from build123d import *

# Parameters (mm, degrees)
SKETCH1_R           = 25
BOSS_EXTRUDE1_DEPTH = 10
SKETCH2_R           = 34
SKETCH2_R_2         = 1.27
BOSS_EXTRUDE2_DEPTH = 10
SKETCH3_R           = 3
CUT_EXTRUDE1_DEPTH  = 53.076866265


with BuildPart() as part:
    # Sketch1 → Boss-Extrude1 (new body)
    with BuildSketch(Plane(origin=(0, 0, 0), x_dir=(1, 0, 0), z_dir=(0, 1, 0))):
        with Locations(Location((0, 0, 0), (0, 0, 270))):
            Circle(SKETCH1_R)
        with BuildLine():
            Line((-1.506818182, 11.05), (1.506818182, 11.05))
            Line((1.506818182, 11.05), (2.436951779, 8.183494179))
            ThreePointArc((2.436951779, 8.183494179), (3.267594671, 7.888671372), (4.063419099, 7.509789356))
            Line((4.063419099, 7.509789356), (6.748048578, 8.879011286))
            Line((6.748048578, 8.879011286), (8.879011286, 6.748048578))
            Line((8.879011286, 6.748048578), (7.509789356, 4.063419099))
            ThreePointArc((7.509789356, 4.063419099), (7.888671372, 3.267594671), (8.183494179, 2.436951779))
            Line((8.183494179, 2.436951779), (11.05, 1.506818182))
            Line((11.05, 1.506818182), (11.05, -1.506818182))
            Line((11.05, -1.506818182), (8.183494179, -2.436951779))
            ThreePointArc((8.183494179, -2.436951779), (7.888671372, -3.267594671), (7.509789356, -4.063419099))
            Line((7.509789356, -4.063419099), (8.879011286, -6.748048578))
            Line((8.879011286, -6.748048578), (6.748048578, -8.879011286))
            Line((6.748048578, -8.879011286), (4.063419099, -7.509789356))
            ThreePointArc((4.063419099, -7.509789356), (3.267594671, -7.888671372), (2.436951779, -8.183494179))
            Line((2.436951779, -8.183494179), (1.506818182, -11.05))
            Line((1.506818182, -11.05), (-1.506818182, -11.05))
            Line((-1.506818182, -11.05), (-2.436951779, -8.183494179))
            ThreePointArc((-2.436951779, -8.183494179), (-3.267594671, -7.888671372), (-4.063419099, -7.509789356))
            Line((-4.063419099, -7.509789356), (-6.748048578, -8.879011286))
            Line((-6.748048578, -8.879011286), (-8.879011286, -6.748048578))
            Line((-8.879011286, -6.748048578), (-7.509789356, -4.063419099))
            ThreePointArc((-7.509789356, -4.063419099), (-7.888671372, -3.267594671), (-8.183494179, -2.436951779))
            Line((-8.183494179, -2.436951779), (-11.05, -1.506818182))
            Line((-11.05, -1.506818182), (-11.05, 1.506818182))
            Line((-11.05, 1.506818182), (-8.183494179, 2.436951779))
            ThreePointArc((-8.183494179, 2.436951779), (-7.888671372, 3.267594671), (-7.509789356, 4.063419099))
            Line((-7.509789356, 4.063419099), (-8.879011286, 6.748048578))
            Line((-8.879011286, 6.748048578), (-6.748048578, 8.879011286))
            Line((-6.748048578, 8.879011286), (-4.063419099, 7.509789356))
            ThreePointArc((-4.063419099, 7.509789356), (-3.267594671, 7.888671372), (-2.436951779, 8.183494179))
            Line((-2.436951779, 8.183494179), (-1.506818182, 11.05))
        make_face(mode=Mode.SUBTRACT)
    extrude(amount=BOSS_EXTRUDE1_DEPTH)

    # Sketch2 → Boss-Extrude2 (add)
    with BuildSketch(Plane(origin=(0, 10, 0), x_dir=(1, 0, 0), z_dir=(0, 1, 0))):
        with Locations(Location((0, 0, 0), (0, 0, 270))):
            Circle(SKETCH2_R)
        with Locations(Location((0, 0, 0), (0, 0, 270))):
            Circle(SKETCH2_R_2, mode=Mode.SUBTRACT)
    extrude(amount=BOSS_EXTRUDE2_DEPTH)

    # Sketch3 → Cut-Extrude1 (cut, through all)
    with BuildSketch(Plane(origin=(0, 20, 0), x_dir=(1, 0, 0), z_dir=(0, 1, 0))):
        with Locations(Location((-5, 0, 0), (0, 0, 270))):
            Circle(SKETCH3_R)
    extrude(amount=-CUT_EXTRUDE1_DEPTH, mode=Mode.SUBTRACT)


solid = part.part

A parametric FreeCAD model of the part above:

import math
import FreeCAD as App
import Part
import Sketcher

V = App.Vector

doc = App.newDocument("Part")
body = doc.addObject("PartDesign::Body", "Body")

sketch1 = body.newObject("Sketcher::SketchObject", "Sketch")
sketch1.AttachmentSupport = (doc.getObject("XZ_Plane"), [""])
sketch1.MapMode = "FlatFace"
sketch1.addGeometry(Part.Circle(V(0, 0, 0), V(0, 0, 1), 25), False)
sketch1.addGeometry(Part.LineSegment(V(-2.4, -8.2, 0), V(-1.5, -11.1, 0)), False)
sketch1.addGeometry(Part.LineSegment(V(-1.5, -11.1, 0), V(1.5, -11.1, 0)), False)
sketch1.addGeometry(Part.LineSegment(V(1.5, -11.1, 0), V(2.4, -8.2, 0)), False)
sketch1.addGeometry(Part.ArcOfCircle(Part.Circle(V(0, 0, 0), V(0, 0, 1), 8.5), math.radians(-73.42), math.radians(-61.58)), False)
sketch1.addGeometry(Part.LineSegment(V(4.1, -7.5, 0), V(6.7, -8.9, 0)), False)
sketch1.addGeometry(Part.LineSegment(V(6.7, -8.9, 0), V(8.9, -6.7, 0)), False)
sketch1.addGeometry(Part.LineSegment(V(8.9, -6.7, 0), V(7.5, -4.1, 0)), False)
sketch1.addGeometry(Part.ArcOfCircle(Part.Circle(V(0, 0, 0), V(0, 0, 1), 8.5), math.radians(-28.42), math.radians(-16.58)), False)
sketch1.addGeometry(Part.LineSegment(V(8.2, -2.4, 0), V(11.1, -1.5, 0)), False)
sketch1.addGeometry(Part.LineSegment(V(11.1, -1.5, 0), V(11.1, 1.5, 0)), False)
sketch1.addGeometry(Part.LineSegment(V(11.1, 1.5, 0), V(8.2, 2.4, 0)), False)
sketch1.addGeometry(Part.ArcOfCircle(Part.Circle(V(0, 0, 0), V(0, 0, 1), 8.5), math.radians(16.58), math.radians(28.42)), False)
sketch1.addGeometry(Part.LineSegment(V(7.5, 4.1, 0), V(8.9, 6.7, 0)), False)
sketch1.addGeometry(Part.LineSegment(V(8.9, 6.7, 0), V(6.7, 8.9, 0)), False)
sketch1.addGeometry(Part.LineSegment(V(6.7, 8.9, 0), V(4.1, 7.5, 0)), False)
sketch1.addGeometry(Part.ArcOfCircle(Part.Circle(V(0, 0, 0), V(0, 0, 1), 8.5), math.radians(61.58), math.radians(73.42)), False)
sketch1.addGeometry(Part.LineSegment(V(2.4, 8.2, 0), V(1.5, 11.1, 0)), False)
sketch1.addGeometry(Part.LineSegment(V(1.5, 11.1, 0), V(-1.5, 11.1, 0)), False)
sketch1.addGeometry(Part.LineSegment(V(-1.5, 11.1, 0), V(-2.4, 8.2, 0)), False)
sketch1.addGeometry(Part.ArcOfCircle(Part.Circle(V(0, 0, 0), V(0, 0, 1), 8.5), math.radians(106.58), math.radians(118.42)), False)
sketch1.addGeometry(Part.LineSegment(V(-4.1, 7.5, 0), V(-6.7, 8.9, 0)), False)
sketch1.addGeometry(Part.LineSegment(V(-6.7, 8.9, 0), V(-8.9, 6.7, 0)), False)
sketch1.addGeometry(Part.LineSegment(V(-8.9, 6.7, 0), V(-7.5, 4.1, 0)), False)
sketch1.addGeometry(Part.ArcOfCircle(Part.Circle(V(0, 0, 0), V(0, 0, 1), 8.5), math.radians(151.58), math.radians(163.42)), False)
sketch1.addGeometry(Part.LineSegment(V(-8.2, 2.4, 0), V(-11.1, 1.5, 0)), False)
sketch1.addGeometry(Part.LineSegment(V(-11.1, 1.5, 0), V(-11.1, -1.5, 0)), False)
sketch1.addGeometry(Part.LineSegment(V(-11.1, -1.5, 0), V(-8.2, -2.4, 0)), False)
sketch1.addGeometry(Part.ArcOfCircle(Part.Circle(V(0, 0, 0), V(0, 0, 1), 8.5), math.radians(-163.42), math.radians(-151.58)), False)
sketch1.addGeometry(Part.LineSegment(V(-7.5, -4.1, 0), V(-8.9, -6.7, 0)), False)
sketch1.addGeometry(Part.LineSegment(V(-8.9, -6.7, 0), V(-6.7, -8.9, 0)), False)
sketch1.addGeometry(Part.LineSegment(V(-6.7, -8.9, 0), V(-4.1, -7.5, 0)), False)
sketch1.addGeometry(Part.ArcOfCircle(Part.Circle(V(0, 0, 0), V(0, 0, 1), 8.5), math.radians(-118.42), math.radians(-106.58)), False)
sketch1.addConstraint(Sketcher.Constraint("Coincident", 1, 2, 2, 1))
sketch1.addConstraint(Sketcher.Constraint("Coincident", 2, 2, 3, 1))
sketch1.addConstraint(Sketcher.Constraint("Coincident", 3, 2, 4, 1))
sketch1.addConstraint(Sketcher.Constraint("Coincident", 4, 2, 5, 1))
sketch1.addConstraint(Sketcher.Constraint("Coincident", 5, 2, 6, 1))
sketch1.addConstraint(Sketcher.Constraint("Coincident", 6, 2, 7, 1))
sketch1.addConstraint(Sketcher.Constraint("Coincident", 7, 2, 8, 1))
sketch1.addConstraint(Sketcher.Constraint("Coincident", 8, 2, 9, 1))
sketch1.addConstraint(Sketcher.Constraint("Coincident", 9, 2, 10, 1))
sketch1.addConstraint(Sketcher.Constraint("Coincident", 10, 2, 11, 1))
sketch1.addConstraint(Sketcher.Constraint("Coincident", 11, 2, 12, 1))
sketch1.addConstraint(Sketcher.Constraint("Coincident", 12, 2, 13, 1))
sketch1.addConstraint(Sketcher.Constraint("Coincident", 13, 2, 14, 1))
sketch1.addConstraint(Sketcher.Constraint("Coincident", 14, 2, 15, 1))
sketch1.addConstraint(Sketcher.Constraint("Coincident", 15, 2, 16, 1))
sketch1.addConstraint(Sketcher.Constraint("Coincident", 16, 2, 17, 1))
sketch1.addConstraint(Sketcher.Constraint("Coincident", 17, 2, 18, 1))
sketch1.addConstraint(Sketcher.Constraint("Coincident", 18, 2, 19, 1))
sketch1.addConstraint(Sketcher.Constraint("Coincident", 19, 2, 20, 1))
sketch1.addConstraint(Sketcher.Constraint("Coincident", 20, 2, 21, 1))
sketch1.addConstraint(Sketcher.Constraint("Coincident", 21, 2, 22, 1))
sketch1.addConstraint(Sketcher.Constraint("Coincident", 22, 2, 23, 1))
sketch1.addConstraint(Sketcher.Constraint("Coincident", 23, 2, 24, 1))
sketch1.addConstraint(Sketcher.Constraint("Coincident", 24, 2, 25, 1))
sketch1.addConstraint(Sketcher.Constraint("Coincident", 25, 2, 26, 1))
sketch1.addConstraint(Sketcher.Constraint("Coincident", 26, 2, 27, 1))
sketch1.addConstraint(Sketcher.Constraint("Coincident", 27, 2, 28, 1))
sketch1.addConstraint(Sketcher.Constraint("Coincident", 28, 2, 29, 1))
sketch1.addConstraint(Sketcher.Constraint("Coincident", 29, 2, 30, 1))
sketch1.addConstraint(Sketcher.Constraint("Coincident", 30, 2, 31, 1))
sketch1.addConstraint(Sketcher.Constraint("Coincident", 31, 2, 32, 1))
sketch1.addConstraint(Sketcher.Constraint("Coincident", 32, 2, 1, 1))
sketch1.addConstraint(Sketcher.Constraint("Horizontal", 2))
sketch1.addConstraint(Sketcher.Constraint("Vertical", 10))
sketch1.addConstraint(Sketcher.Constraint("Horizontal", 18))
sketch1.addConstraint(Sketcher.Constraint("Vertical", 26))
sketch1.addConstraint(Sketcher.Constraint("Coincident", 0, 3, -1, 1))
sketch1.addConstraint(Sketcher.Constraint("Coincident", 4, 3, -1, 1))
sketch1.addConstraint(Sketcher.Constraint("Coincident", 8, 3, -1, 1))
sketch1.addConstraint(Sketcher.Constraint("Coincident", 12, 3, -1, 1))
sketch1.addConstraint(Sketcher.Constraint("Coincident", 16, 3, -1, 1))
sketch1.addConstraint(Sketcher.Constraint("Coincident", 20, 3, -1, 1))
sketch1.addConstraint(Sketcher.Constraint("Coincident", 24, 3, -1, 1))
sketch1.addConstraint(Sketcher.Constraint("Coincident", 28, 3, -1, 1))
sketch1.addConstraint(Sketcher.Constraint("Coincident", 32, 3, -1, 1))
sketch1.addConstraint(Sketcher.Constraint("Equal", 4, 8))
sketch1.addConstraint(Sketcher.Constraint("Equal", 8, 12))
sketch1.addConstraint(Sketcher.Constraint("Equal", 12, 16))
sketch1.addConstraint(Sketcher.Constraint("Equal", 16, 20))
sketch1.addConstraint(Sketcher.Constraint("Equal", 20, 24))
sketch1.addConstraint(Sketcher.Constraint("Equal", 24, 28))
sketch1.addConstraint(Sketcher.Constraint("Equal", 28, 32))
sketch1.addConstraint(Sketcher.Constraint("Symmetric", 1, 2, 17, 2, -1, 1))
sketch1.addConstraint(Sketcher.Constraint("Symmetric", 5, 2, 21, 2, -1, 1))
sketch1.addConstraint(Sketcher.Constraint("Symmetric", 6, 2, 22, 2, -1, 1))
sketch1.addConstraint(Sketcher.Constraint("Symmetric", 9, 2, 25, 2, -1, 1))
sketch1.addConstraint(Sketcher.Constraint("Symmetric", 13, 2, 29, 2, -1, 1))
sketch1.addConstraint(Sketcher.Constraint("Symmetric", 14, 2, 30, 2, -1, 1))
sketch1.addConstraint(Sketcher.Constraint("Symmetric", 14, 2, 21, 2, -2))
sketch1.addConstraint(Sketcher.Constraint("Symmetric", 13, 2, 22, 2, -2))
sketch1.addConstraint(Sketcher.Constraint("Perpendicular", 1, 9))
sketch1.addConstraint(Sketcher.Constraint("Perpendicular", 3, 11))
sketch1.addConstraint(Sketcher.Constraint("Perpendicular", 5, 13))
sketch1.addConstraint(Sketcher.Constraint("Perpendicular", 6, 14))
sketch1.addConstraint(Sketcher.Constraint("Perpendicular", 7, 15))
sketch1.addConstraint(Sketcher.Constraint("Perpendicular", 9, 17))
sketch1.addConstraint(Sketcher.Constraint("Perpendicular", 11, 19))
sketch1.addConstraint(Sketcher.Constraint("Perpendicular", 13, 21))
sketch1.addConstraint(Sketcher.Constraint("Perpendicular", 15, 23))
sketch1.addConstraint(Sketcher.Constraint("Perpendicular", 17, 25))
sketch1.addConstraint(Sketcher.Constraint("Perpendicular", 19, 27))
sketch1.addConstraint(Sketcher.Constraint("Perpendicular", 21, 29))
sketch1.addConstraint(Sketcher.Constraint("Perpendicular", 23, 31))
sketch1.addConstraint(Sketcher.Constraint("Horizontal", 16, 2, 19, 2))
sketch1.addConstraint(Sketcher.Constraint("Horizontal", 15, 2, 20, 2))
sketch1.addConstraint(Sketcher.Constraint("Horizontal", 11, 2, 24, 2))
sketch1.addConstraint(Sketcher.Constraint("Horizontal", 10, 2, 25, 2))
sketch1.addConstraint(Sketcher.Constraint("Horizontal", 9, 2, 26, 2))
sketch1.addConstraint(Sketcher.Constraint("Horizontal", 3, 2, 32, 2))
sketch1.addConstraint(Sketcher.Constraint("Equal", 18, 10))
sketch1.addConstraint(Sketcher.Constraint("Equal", 3, 5))
sketch1.addConstraint(Sketcher.Constraint("Equal", 5, 6))
sketch1.addConstraint(Sketcher.Constraint("Equal", 6, 7))
sketch1.addConstraint(Sketcher.Constraint("Equal", 7, 9))
sketch1.addConstraint(Sketcher.Constraint("Diameter", 0, 50.0))
sketch1.addConstraint(Sketcher.Constraint("DistanceY", 1, 2, -1, 1, 11.05))
sketch1.addConstraint(Sketcher.Constraint("Radius", 4, 8.538636))
sketch1.addConstraint(Sketcher.Constraint("DistanceY", 8, 2, 13, 2, 9.185))
sketch1.addConstraint(Sketcher.Constraint("DistanceX", 2, 2, 4, 2, 2.556601))
sketch1.addConstraint(Sketcher.Constraint("DistanceX", 2, 1, 2, 2, 3.013636))
pad1 = body.newObject("PartDesign::Pad", "Pad")
pad1.Profile = sketch1
pad1.Length = 10
pad1.Reversed = True

sketch2 = body.newObject("Sketcher::SketchObject", "Sketch001")
sketch2.AttachmentSupport = (doc.getObject("XZ_Plane"), [""])
sketch2.MapMode = "FlatFace"
sketch2.AttachmentOffset = App.Placement(V(0, 0, -10), App.Rotation())
sketch2.addGeometry(Part.Circle(V(0, 0, 0), V(0, 0, 1), 34), False)
sketch2.addGeometry(Part.Circle(V(0, 0, 0), V(0, 0, 1), 1.3), False)
sketch2.addConstraint(Sketcher.Constraint("Coincident", 0, 3, -1, 1))
sketch2.addConstraint(Sketcher.Constraint("Coincident", 1, 3, -1, 1))
sketch2.addConstraint(Sketcher.Constraint("Diameter", 0, 68.0))
sketch2.addConstraint(Sketcher.Constraint("Diameter", 1, 2.54))
pad2 = body.newObject("PartDesign::Pad", "Pad001")
pad2.Profile = sketch2
pad2.Length = 10
pad2.Reversed = True

sketch3 = body.newObject("Sketcher::SketchObject", "Sketch002")
sketch3.AttachmentSupport = (doc.getObject("XZ_Plane"), [""])
sketch3.MapMode = "FlatFace"
sketch3.AttachmentOffset = App.Placement(V(0, 0, -20), App.Rotation())
sketch3.addGeometry(Part.Circle(V(-5, 0, 0), V(0, 0, 1), 3), False)
sketch3.addConstraint(Sketcher.Constraint("PointOnObject", 0, 3, -1))
sketch3.addConstraint(Sketcher.Constraint("Diameter", 0, 6.0))
sketch3.addConstraint(Sketcher.Constraint("DistanceX", 0, 3, -1, 1, 5.0))
pocket1 = body.newObject("PartDesign::Pocket", "Pocket")
pocket1.Profile = sketch3
pocket1.Type = "ThroughAll"
pocket1.Reversed = True

doc.recompute()
